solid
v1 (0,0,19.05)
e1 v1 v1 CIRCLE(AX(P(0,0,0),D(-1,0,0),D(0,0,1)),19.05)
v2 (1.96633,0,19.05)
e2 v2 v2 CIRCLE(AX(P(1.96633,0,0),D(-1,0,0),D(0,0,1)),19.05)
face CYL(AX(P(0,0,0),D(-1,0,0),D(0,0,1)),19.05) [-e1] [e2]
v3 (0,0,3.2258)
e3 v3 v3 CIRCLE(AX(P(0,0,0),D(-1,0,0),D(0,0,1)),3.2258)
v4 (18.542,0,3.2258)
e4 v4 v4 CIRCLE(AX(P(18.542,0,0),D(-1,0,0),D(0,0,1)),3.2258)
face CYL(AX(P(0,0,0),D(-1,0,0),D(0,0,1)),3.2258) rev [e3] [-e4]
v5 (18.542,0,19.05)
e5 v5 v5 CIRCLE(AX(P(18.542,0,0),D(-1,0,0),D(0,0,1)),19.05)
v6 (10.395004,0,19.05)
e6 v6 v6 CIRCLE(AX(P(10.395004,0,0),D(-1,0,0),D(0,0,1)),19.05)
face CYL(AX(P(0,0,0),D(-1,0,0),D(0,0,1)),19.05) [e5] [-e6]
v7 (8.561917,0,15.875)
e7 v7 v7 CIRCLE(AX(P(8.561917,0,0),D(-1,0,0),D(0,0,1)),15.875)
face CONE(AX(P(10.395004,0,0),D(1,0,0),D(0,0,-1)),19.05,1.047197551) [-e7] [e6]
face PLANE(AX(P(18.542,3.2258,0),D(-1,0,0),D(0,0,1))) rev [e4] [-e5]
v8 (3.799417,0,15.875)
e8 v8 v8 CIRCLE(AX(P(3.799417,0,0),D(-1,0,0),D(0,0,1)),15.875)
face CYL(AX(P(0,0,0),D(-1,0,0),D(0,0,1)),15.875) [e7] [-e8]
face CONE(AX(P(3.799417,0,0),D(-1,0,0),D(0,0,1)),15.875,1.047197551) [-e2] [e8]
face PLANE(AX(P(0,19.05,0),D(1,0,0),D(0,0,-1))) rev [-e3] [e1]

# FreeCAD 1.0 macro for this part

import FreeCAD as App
import Part
import Sketcher
Q = App.Units.Quantity

doc = App.newDocument("Part")
params = doc.addObject("Spreadsheet::Sheet", "Params")
for row, (alias, value) in enumerate([
    ("sketch1_width", "0.73 in"),
    ("sketch1_width2", "0.1875 in"),
    ("sketch1_height", "0.623 in"),
    ("revolution_angle", "360 deg"),
], start=1):
    params.set(f"A{row}", alias)
    params.set(f"B{row}", "=" + value)
    params.setAlias(f"B{row}", alias)

body = doc.addObject("PartDesign::Body", "Body")

sketch1 = body.newObject("Sketcher::SketchObject", "Sketch")
sketch1.AttachmentSupport = (doc.getObject("XY_Plane"), [""])
sketch1.MapMode = "FlatFace"
sketch1.addGeometry(Part.LineSegment(App.Vector(0, 3.2, 0), App.Vector(18.5, 3.2, 0)), False)
sketch1.addGeometry(Part.LineSegment(App.Vector(18.5, 3.2, 0), App.Vector(18.5, 19.1, 0)), False)
sketch1.addGeometry(Part.LineSegment(App.Vector(18.5, 19.1, 0), App.Vector(10.4, 19.1, 0)), False)
sketch1.addGeometry(Part.LineSegment(App.Vector(10.4, 19.1, 0), App.Vector(8.6, 15.9, 0)), False)
sketch1.addGeometry(Part.LineSegment(App.Vector(8.6, 15.9, 0), App.Vector(3.8, 15.9, 0)), False)
sketch1.addGeometry(Part.LineSegment(App.Vector(3.8, 15.9, 0), App.Vector(2, 19.1, 0)), False)
sketch1.addGeometry(Part.LineSegment(App.Vector(2, 19.1, 0), App.Vector(0, 19.1, 0)), False)
sketch1.addGeometry(Part.LineSegment(App.Vector(0, 19.1, 0), App.Vector(0, 3.2, 0)), False)
sketch1.addConstraint(Sketcher.Constraint("Coincident", 0, 2, 1, 1))
sketch1.addConstraint(Sketcher.Constraint("Coincident", 1, 2, 2, 1))
sketch1.addConstraint(Sketcher.Constraint("Coincident", 2, 2, 3, 1))
sketch1.addConstraint(Sketcher.Constraint("Coincident", 3, 2, 4, 1))
sketch1.addConstraint(Sketcher.Constraint("Coincident", 4, 2, 5, 1))
sketch1.addConstraint(Sketcher.Constraint("Coincident", 5, 2, 6, 1))
sketch1.addConstraint(Sketcher.Constraint("Coincident", 6, 2, 7, 1))
sketch1.addConstraint(Sketcher.Constraint("Coincident", 7, 2, 0, 1))
sketch1.addConstraint(Sketcher.Constraint("Horizontal", 0))
sketch1.addConstraint(Sketcher.Constraint("Vertical", 1))
sketch1.addConstraint(Sketcher.Constraint("Horizontal", 2))
sketch1.addConstraint(Sketcher.Constraint("Horizontal", 4))
sketch1.addConstraint(Sketcher.Constraint("Horizontal", 6))
sketch1.addConstraint(Sketcher.Constraint("Vertical", 7))
sketch1.addConstraint(Sketcher.Constraint("PointOnObject", 6, 2, -2))
sketch1.addConstraint(Sketcher.Constraint("Horizontal", 2, 2, 5, 2))
sketch1.addConstraint(Sketcher.Constraint("Equal", 3, 5))
sketch1.addConstraint(Sketcher.Constraint("Angle", 3, Q("-120 deg")))
sketch1.addConstraint(Sketcher.Constraint("DistanceX", 0, 1, 0, 2, Q("0.73 in")))
sketch1.addConstraint(Sketcher.Constraint("DistanceX", 4, 2, 4, 1, Q("0.1875 in")))
sketch1.addConstraint(Sketcher.Constraint("DistanceY", 1, 1, 1, 2, Q("0.623 in")))
sketch1.addConstraint(Sketcher.Constraint("DistanceY", -1, 1, 1, 2, Q("0.75 in")))
sketch1.addConstraint(Sketcher.Constraint("DistanceY", -1, 1, 3, 2, Q("0.625 in")))
sketch1.addConstraint(Sketcher.Constraint("DistanceX", 6, 2, 6, 1, Q("1.96633 mm")))
sketch1.setExpression("Constraints[18]", "Params.sketch1_width")
sketch1.setExpression("Constraints[19]", "Params.sketch1_width2")
sketch1.setExpression("Constraints[20]", "Params.sketch1_height")
revolution = body.newObject("PartDesign::Revolution", "Revolution")
revolution.Profile = sketch1
revolution.ReferenceAxis = (sketch1, ["H_Axis"])
revolution.setExpression("Angle", "Params.revolution_angle")

doc.recompute()
